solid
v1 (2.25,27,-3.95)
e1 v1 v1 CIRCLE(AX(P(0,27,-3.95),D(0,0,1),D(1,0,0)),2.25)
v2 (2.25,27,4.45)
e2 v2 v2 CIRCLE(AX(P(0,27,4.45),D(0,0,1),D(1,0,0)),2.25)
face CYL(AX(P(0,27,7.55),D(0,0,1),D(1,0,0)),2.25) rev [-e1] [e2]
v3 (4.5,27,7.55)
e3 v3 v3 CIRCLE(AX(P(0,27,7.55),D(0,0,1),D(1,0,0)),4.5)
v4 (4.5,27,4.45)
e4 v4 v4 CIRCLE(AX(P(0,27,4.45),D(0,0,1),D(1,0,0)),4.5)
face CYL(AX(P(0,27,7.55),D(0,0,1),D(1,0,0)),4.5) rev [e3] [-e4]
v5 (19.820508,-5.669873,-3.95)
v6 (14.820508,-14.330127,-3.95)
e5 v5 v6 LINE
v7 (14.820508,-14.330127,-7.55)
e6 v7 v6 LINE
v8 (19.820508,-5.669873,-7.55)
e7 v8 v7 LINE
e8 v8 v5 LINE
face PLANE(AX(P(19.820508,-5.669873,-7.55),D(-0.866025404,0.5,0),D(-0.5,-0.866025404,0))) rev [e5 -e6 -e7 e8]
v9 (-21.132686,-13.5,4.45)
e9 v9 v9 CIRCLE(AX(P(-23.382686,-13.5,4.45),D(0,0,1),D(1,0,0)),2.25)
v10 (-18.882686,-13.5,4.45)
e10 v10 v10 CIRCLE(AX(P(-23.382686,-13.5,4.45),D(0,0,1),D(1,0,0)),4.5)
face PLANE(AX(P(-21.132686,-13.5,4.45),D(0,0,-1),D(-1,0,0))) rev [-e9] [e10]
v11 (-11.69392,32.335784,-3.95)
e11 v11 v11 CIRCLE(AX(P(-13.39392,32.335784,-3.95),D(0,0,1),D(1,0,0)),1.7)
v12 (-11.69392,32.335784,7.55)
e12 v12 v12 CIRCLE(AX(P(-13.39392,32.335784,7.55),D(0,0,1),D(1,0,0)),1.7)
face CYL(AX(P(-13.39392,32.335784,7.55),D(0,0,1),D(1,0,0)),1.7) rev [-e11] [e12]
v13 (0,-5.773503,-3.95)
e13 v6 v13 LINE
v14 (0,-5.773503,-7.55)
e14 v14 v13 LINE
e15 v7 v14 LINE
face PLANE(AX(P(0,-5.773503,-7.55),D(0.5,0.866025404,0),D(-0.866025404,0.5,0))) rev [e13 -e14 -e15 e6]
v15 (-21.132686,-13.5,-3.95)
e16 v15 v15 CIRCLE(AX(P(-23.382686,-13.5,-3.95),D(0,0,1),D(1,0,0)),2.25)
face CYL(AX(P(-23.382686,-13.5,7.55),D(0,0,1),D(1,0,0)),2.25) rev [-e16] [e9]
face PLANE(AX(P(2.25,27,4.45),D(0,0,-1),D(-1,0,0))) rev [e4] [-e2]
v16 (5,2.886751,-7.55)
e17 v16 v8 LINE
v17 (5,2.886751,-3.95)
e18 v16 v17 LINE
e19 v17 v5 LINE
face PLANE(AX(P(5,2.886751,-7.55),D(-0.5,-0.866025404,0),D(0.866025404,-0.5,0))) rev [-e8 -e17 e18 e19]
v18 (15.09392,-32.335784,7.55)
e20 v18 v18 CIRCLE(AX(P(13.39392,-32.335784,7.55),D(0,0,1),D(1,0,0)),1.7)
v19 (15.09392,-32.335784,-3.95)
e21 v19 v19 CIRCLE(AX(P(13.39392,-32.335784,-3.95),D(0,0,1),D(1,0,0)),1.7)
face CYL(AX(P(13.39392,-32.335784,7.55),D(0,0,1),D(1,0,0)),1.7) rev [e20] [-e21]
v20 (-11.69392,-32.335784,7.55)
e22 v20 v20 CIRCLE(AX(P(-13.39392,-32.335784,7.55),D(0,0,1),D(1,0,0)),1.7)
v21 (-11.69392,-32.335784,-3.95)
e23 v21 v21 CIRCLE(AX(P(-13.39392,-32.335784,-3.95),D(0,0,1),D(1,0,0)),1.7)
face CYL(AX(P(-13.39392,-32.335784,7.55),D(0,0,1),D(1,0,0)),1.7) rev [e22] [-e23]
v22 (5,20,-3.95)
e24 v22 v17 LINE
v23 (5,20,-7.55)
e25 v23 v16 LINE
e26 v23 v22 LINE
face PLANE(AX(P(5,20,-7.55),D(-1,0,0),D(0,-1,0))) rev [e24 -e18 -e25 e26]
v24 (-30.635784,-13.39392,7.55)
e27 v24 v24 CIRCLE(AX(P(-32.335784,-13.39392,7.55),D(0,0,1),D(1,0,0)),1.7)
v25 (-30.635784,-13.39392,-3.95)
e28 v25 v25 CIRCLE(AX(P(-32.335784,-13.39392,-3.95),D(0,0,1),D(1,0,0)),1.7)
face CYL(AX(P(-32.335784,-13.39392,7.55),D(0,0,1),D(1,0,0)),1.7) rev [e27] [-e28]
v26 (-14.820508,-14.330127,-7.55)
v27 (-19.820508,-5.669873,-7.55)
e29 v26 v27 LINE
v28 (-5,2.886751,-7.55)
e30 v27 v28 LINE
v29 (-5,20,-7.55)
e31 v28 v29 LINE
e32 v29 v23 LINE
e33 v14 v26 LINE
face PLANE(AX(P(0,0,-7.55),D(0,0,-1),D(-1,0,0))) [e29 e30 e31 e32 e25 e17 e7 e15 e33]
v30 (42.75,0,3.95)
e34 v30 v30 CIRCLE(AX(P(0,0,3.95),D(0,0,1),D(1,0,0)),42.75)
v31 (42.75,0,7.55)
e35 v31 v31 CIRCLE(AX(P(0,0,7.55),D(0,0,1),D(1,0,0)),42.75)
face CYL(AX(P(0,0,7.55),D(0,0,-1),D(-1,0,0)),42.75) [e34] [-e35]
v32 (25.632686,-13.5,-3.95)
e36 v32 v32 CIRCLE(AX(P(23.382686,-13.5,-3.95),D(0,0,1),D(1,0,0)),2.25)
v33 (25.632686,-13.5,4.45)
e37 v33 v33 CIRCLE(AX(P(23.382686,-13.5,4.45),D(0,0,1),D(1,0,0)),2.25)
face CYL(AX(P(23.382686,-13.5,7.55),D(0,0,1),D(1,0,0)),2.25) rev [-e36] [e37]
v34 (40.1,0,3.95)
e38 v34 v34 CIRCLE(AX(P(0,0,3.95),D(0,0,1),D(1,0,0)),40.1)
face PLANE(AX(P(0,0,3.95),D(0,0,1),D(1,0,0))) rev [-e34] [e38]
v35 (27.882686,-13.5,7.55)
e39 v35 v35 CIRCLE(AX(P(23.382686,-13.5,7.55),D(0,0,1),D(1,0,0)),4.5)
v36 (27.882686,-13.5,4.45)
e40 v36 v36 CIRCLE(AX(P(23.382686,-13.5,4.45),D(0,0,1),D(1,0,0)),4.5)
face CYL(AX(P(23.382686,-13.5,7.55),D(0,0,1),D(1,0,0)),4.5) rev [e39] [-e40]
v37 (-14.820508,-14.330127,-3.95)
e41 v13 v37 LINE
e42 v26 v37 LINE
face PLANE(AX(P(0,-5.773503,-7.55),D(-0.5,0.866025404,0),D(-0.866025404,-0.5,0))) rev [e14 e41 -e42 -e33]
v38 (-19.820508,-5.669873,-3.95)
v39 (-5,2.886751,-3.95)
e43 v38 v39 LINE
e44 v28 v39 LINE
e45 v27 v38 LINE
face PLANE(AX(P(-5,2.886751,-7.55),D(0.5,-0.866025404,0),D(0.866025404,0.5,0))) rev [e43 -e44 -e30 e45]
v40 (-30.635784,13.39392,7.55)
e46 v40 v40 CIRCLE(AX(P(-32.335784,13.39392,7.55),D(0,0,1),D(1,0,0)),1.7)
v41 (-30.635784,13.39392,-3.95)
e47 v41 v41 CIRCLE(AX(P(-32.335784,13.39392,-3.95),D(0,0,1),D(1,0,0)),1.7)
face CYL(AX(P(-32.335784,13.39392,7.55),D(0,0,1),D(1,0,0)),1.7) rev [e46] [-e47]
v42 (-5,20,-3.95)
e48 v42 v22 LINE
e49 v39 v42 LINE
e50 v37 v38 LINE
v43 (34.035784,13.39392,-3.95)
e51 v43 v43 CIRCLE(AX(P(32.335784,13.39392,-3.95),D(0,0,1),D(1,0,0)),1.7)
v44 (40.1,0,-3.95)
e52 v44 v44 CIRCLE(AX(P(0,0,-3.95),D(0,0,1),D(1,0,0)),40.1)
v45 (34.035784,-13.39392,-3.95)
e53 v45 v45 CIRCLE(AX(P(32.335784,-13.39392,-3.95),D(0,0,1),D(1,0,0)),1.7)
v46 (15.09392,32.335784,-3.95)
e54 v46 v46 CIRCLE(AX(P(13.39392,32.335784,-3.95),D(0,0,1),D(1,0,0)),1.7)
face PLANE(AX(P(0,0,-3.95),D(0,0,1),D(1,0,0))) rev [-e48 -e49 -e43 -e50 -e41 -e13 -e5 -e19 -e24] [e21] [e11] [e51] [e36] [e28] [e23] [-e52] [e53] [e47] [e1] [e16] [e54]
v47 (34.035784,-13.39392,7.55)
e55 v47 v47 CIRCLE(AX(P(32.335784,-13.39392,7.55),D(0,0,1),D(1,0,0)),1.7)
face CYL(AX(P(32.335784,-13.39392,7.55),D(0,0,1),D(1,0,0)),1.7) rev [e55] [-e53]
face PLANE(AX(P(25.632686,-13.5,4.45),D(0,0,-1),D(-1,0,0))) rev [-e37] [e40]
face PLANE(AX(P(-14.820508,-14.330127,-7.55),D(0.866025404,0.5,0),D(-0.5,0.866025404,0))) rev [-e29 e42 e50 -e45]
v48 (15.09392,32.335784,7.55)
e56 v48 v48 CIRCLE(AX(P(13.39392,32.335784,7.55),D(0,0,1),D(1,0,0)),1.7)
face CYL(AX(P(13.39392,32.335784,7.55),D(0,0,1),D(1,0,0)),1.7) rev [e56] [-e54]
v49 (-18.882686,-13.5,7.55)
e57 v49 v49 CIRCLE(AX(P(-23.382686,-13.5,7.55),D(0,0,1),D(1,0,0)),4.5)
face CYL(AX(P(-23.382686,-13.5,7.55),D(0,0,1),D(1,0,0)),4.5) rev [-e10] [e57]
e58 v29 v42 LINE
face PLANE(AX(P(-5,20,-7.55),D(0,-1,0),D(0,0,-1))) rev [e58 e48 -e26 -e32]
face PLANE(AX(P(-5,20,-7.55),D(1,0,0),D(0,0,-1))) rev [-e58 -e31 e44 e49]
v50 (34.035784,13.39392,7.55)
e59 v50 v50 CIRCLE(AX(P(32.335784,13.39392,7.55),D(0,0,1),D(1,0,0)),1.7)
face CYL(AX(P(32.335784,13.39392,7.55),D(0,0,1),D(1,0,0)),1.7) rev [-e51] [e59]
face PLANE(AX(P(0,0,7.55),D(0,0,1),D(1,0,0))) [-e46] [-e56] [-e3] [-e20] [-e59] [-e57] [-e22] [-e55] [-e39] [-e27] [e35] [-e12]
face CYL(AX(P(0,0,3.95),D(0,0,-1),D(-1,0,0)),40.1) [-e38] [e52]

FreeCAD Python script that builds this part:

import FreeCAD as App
import Part
import Sketcher
Q = App.Units.Quantity


def add_polygon(sketch, points):
    """Adds a closed chain of lines whose ends are joined by coincident constraints."""
    first, n = sketch.GeometryCount, len(points)
    for a, b in zip(points, points[1:] + points[:1]):
        sketch.addGeometry(Part.LineSegment(App.Vector(*a, 0), App.Vector(*b, 0)), False)
    for i in range(n):
        sketch.addConstraint(Sketcher.Constraint("Coincident", first + i, 2, first + (i + 1) % n, 1))

doc = App.newDocument("Part")
body = doc.addObject("PartDesign::Body", "Body")

# Sketch on XY plane
sketch1 = doc.addObject("Sketcher::SketchObject", "Sketch")
body.addObject(sketch1)
sketch1.AttachmentSupport = (doc.XY_Plane, [""])
sketch1.MapMode = "FlatFace"
sketch1.addGeometry(Part.Circle(App.Vector(0, 0, 0), App.Vector(0, 0, 1), 40), False)
sketch1.addConstraint(Sketcher.Constraint("Coincident", 0, 3, -1, 1))
sketch1.addConstraint(Sketcher.Constraint("Diameter", 0, Q("80.2 mm")))
pad1 = doc.addObject("PartDesign::Pad", "Pad")
body.addObject(pad1)
pad1.Profile = sketch1
pad1.Length = 7.9
pad1.Midplane = True

# Sketch on XY plane
sketch2 = doc.addObject("Sketcher::SketchObject", "Sketch001")
body.addObject(sketch2)
sketch2.AttachmentSupport = (doc.XY_Plane, [""])
sketch2.MapMode = "FlatFace"
sketch2.AttachmentOffset = App.Placement(App.Vector(0, 0, 3.95), App.Rotation())
sketch2.addGeometry(Part.Circle(App.Vector(0, 0, 0), App.Vector(0, 0, 1), 43), False)
sketch2.addConstraint(Sketcher.Constraint("Coincident", 0, 3, -1, 1))
sketch2.addConstraint(Sketcher.Constraint("Diameter", 0, Q("85.5 mm")))
pad2 = doc.addObject("PartDesign::Pad", "Pad001")
body.addObject(pad2)
pad2.Profile = sketch2
pad2.Length = 3.6

# Sketch on XY plane
sketch3 = doc.addObject("Sketcher::SketchObject", "Sketch002")
body.addObject(sketch3)
sketch3.AttachmentSupport = (doc.XY_Plane, [""])
sketch3.MapMode = "FlatFace"
sketch3.AttachmentOffset = App.Placement(App.Vector(0, 0, 7.55), App.Rotation())
sketch3.addGeometry(Part.Circle(App.Vector(0, 27, 0), App.Vector(0, 0, 1), 2.2), False)
sketch3.addGeometry(Part.Circle(App.Vector(23.4, -13.5, 0), App.Vector(0, 0, 1), 2.2), False)
sketch3.addGeometry(Part.Circle(App.Vector(-23.4, -13.5, 0), App.Vector(0, 0, 1), 2.2), False)
sketch3.addConstraint(Sketcher.Constraint("Equal", 0, 1))
sketch3.addConstraint(Sketcher.Constraint("Equal", 1, 2))
sketch3.addConstraint(Sketcher.Constraint("Symmetric", 1, 3, 2, 3, -2))
sketch3.addConstraint(Sketcher.Constraint("PointOnObject", 0, 3, -2))
sketch3.addConstraint(Sketcher.Constraint("Diameter", 0, Q("4.5 mm")))
sketch3.addConstraint(Sketcher.Constraint("DistanceY", -1, 1, 0, 3, Q("27 mm")))
sketch3.addConstraint(Sketcher.Constraint("DistanceY", 1, 3, -1, 1, Q("13.5 mm")))
sketch3.addConstraint(Sketcher.Constraint("DistanceX", 2, 3, 1, 3, Q("46.765372 mm")))
doc.recompute()
hole = doc.addObject("PartDesign::Hole", "Hole")
body.addObject(hole)
hole.Profile = sketch3
hole.ThreadType = "None"
hole.Diameter = 4.5
hole.DepthType = "ThroughAll"
hole.HoleCutType = "Counterbore"
hole.HoleCutDiameter = 9
hole.HoleCutDepth = 3.1

# Sketch on XY plane
sketch4 = doc.addObject("Sketcher::SketchObject", "Sketch003")
body.addObject(sketch4)
sketch4.AttachmentSupport = (doc.XY_Plane, [""])
sketch4.MapMode = "FlatFace"
sketch4.AttachmentOffset = App.Placement(App.Vector(0, 0, -3.95), App.Rotation())
add_polygon(sketch4, [(-5, 3), (-5, 20), (5, 20), (5, 3), (20, -6), (15, -14), (0, -6), (-15, -14), (-20, -6)])  # lines 0-8
sketch4.addConstraint(Sketcher.Constraint("Vertical", 0))
sketch4.addConstraint(Sketcher.Constraint("Horizontal", 1))
sketch4.addConstraint(Sketcher.Constraint("Vertical", 2))
sketch4.addConstraint(Sketcher.Constraint("Symmetric", 4, 2, 6, 2, -2))
sketch4.addConstraint(Sketcher.Constraint("Symmetric", 3, 2, 7, 2, -2))
sketch4.addConstraint(Sketcher.Constraint("Symmetric", 2, 2, 8, 2, -2))
sketch4.addConstraint(Sketcher.Constraint("PointOnObject", 5, 2, -2))
sketch4.addConstraint(Sketcher.Constraint("Perpendicular", 3, 4))
sketch4.addConstraint(Sketcher.Constraint("Perpendicular", 4, 5))
sketch4.addConstraint(Sketcher.Constraint("Equal", 3, 5))
sketch4.addConstraint(Sketcher.Constraint("DistanceX", 1, 1, 1, 2, Q("10 mm")))
sketch4.addConstraint(Sketcher.Constraint("Angle", 3, Q("-30 deg")))
sketch4.addConstraint(Sketcher.Constraint("DistanceY", -1, 1, 0, 2, Q("20 mm")))
sketch4.addConstraint(Sketcher.Constraint("DistanceY", 0, 1, 0, 2, Q("17.113249 mm")))
sketch4.addConstraint(Sketcher.Constraint("Distance", 3, Q("17.113249 mm")))
pad3 = doc.addObject("PartDesign::Pad", "Pad002")
body.addObject(pad3)
pad3.Profile = sketch4
pad3.Length = 3.6
pad3.Reversed = True

# Sketch on XY plane
sketch5 = doc.addObject("Sketcher::SketchObject", "Sketch004")
body.addObject(sketch5)
sketch5.AttachmentSupport = (doc.XY_Plane, [""])
sketch5.MapMode = "FlatFace"
sketch5.AttachmentOffset = App.Placement(App.Vector(0, 0, 7.55), App.Rotation())
sketch5.addGeometry(Part.Circle(App.Vector(13.4, 32.3, 0), App.Vector(0, 0, 1), 1.7), False)
sketch5.addGeometry(Part.Circle(App.Vector(32.3, 13.4, 0), App.Vector(0, 0, 1), 1.7), False)
sketch5.addGeometry(Part.Circle(App.Vector(32.3, -13.4, 0), App.Vector(0, 0, 1), 1.7), False)
sketch5.addGeometry(Part.Circle(App.Vector(13.4, -32.3, 0), App.Vector(0, 0, 1), 1.7), False)
sketch5.addGeometry(Part.Circle(App.Vector(-13.4, -32.3, 0), App.Vector(0, 0, 1), 1.7), False)
sketch5.addGeometry(Part.Circle(App.Vector(-32.3, -13.4, 0), App.Vector(0, 0, 1), 1.7), False)
sketch5.addGeometry(Part.Circle(App.Vector(-32.3, 13.4, 0), App.Vector(0, 0, 1), 1.7), False)
sketch5.addGeometry(Part.Circle(App.Vector(-13.4, 32.3, 0), App.Vector(0, 0, 1), 1.7), False)
sketch5.addConstraint(Sketcher.Constraint("Equal", 0, 1))
sketch5.addConstraint(Sketcher.Constraint("Equal", 1, 2))
sketch5.addConstraint(Sketcher.Constraint("Equal", 2, 3))
sketch5.addConstraint(Sketcher.Constraint("Equal", 3, 4))
sketch5.addConstraint(Sketcher.Constraint("Equal", 4, 5))
sketch5.addConstraint(Sketcher.Constraint("Equal", 5, 6))
sketch5.addConstraint(Sketcher.Constraint("Equal", 6, 7))
sketch5.addConstraint(Sketcher.Constraint("Symmetric", 0, 3, 4, 3, -1, 1))
sketch5.addConstraint(Sketcher.Constraint("Symmetric", 1, 3, 5, 3, -1, 1))
sketch5.addConstraint(Sketcher.Constraint("Symmetric", 2, 3, 6, 3, -1, 1))
sketch5.addConstraint(Sketcher.Constraint("Symmetric", 3, 3, 7, 3, -1, 1))
sketch5.addConstraint(Sketcher.Constraint("Symmetric", 3, 3, 4, 3, -2))
sketch5.addConstraint(Sketcher.Constraint("Symmetric", 2, 3, 5, 3, -2))
sketch5.addConstraint(Sketcher.Constraint("Diameter", 0, Q("3.4 mm")))
sketch5.addConstraint(Sketcher.Constraint("DistanceX", -1, 1, 0, 3, Q("13.39392 mm")))
sketch5.addConstraint(Sketcher.Constraint("DistanceY", -1, 1, 1, 3, Q("13.39392 mm")))
sketch5.addConstraint(Sketcher.Constraint("DistanceY", -1, 1, 0, 3, Q("32.335784 mm")))
sketch5.addConstraint(Sketcher.Constraint("DistanceX", -1, 1, 1, 3, Q("32.335784 mm")))
doc.recompute()
hole2 = doc.addObject("PartDesign::Hole", "Hole001")
body.addObject(hole2)
hole2.Profile = sketch5
hole2.ThreadType = "None"
hole2.Diameter = 3.4
hole2.DepthType = "ThroughAll"

doc.recompute()
